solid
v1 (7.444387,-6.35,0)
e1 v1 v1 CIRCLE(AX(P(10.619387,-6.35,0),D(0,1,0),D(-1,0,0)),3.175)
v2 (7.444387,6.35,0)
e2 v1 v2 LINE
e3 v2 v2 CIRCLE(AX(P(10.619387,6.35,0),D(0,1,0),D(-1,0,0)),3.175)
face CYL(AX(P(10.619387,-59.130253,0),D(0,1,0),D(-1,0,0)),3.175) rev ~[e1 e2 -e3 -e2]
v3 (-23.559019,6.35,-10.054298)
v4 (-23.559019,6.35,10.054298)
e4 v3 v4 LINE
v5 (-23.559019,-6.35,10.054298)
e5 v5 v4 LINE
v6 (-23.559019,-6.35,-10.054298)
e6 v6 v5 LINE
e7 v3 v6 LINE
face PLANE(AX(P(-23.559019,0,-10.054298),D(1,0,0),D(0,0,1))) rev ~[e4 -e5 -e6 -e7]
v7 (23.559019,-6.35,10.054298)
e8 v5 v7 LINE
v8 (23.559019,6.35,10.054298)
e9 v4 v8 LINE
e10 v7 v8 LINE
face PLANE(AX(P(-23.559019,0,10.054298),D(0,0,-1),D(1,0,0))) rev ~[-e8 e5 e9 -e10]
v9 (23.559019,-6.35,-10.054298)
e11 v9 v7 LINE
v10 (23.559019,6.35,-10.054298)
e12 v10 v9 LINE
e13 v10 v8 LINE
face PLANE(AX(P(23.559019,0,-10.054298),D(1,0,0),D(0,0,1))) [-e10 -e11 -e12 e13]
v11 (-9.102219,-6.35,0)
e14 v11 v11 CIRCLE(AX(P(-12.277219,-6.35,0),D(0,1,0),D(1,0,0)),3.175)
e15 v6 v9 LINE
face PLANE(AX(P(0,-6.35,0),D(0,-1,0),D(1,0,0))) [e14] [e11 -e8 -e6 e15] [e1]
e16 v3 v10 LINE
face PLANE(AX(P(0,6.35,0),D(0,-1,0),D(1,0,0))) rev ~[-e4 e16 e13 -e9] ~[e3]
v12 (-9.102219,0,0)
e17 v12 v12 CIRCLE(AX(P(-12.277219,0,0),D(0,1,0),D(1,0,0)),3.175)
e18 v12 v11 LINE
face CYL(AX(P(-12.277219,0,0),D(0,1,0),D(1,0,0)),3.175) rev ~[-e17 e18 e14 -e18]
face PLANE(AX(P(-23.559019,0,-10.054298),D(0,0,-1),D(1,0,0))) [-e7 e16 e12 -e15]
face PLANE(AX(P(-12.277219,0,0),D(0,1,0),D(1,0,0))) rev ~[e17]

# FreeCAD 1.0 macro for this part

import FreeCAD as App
import Part
import Sketcher
Q = App.Units.Quantity


def add_polygon(sketch, points):
    """Adds a closed chain of lines whose ends are joined by coincident constraints."""
    first, n = sketch.GeometryCount, len(points)
    for a, b in zip(points, points[1:] + points[:1]):
        sketch.addGeometry(Part.LineSegment(App.Vector(*a, 0), App.Vector(*b, 0)), False)
    for i in range(n):
        sketch.addConstraint(Sketcher.Constraint("Coincident", first + i, 2, first + (i + 1) % n, 1))

doc = App.newDocument("Part")
body = doc.addObject("PartDesign::Body", "Body")

# Sketch on XZ plane
sketch1 = body.newObject("Sketcher::SketchObject", "Sketch")
sketch1.AttachmentSupport = (doc.getObject("XZ_Plane"), [""])
sketch1.MapMode = "FlatFace"
add_polygon(sketch1, [(-24, 10), (-24, -10), (24, -10), (24, 10)])  # lines 0-3
sketch1.addConstraint([
    Sketcher.Constraint("Vertical", 0),
    Sketcher.Constraint("Horizontal", 1),
    Sketcher.Constraint("Vertical", 2),
    Sketcher.Constraint("Horizontal", 3),
    Sketcher.Constraint("Symmetric", 0, 2, 2, 2, -1, 1),
    Sketcher.Constraint("DistanceX", 1, 1, 1, 2, Q("47.118038 mm")),
    Sketcher.Constraint("DistanceY", 0, 2, 0, 1, Q("20.108595 mm")),
])
pad1 = body.newObject("PartDesign::Pad", "Pad")
pad1.Profile = sketch1
pad1.Length = Q("0.5 in")
pad1.Midplane = True

# Sketch on XZ plane
sketch2 = body.newObject("Sketcher::SketchObject", "Sketch001")
sketch2.AttachmentSupport = (doc.getObject("XZ_Plane"), [""])
sketch2.MapMode = "FlatFace"
sketch2.addGeometry(Part.Circle(App.Vector(-12.3, 0, 0), App.Vector(0, 0, 1), 3.2), False)
sketch2.addConstraint([
    Sketcher.Constraint("PointOnObject", 0, 3, -1),
    Sketcher.Constraint("Diameter", 0, Q("0.25 in")),
    Sketcher.Constraint("DistanceX", 0, 3, -1, 1, Q("12.277219 mm")),
])
pocket1 = body.newObject("PartDesign::Pocket", "Pocket")
pocket1.Profile = sketch2
pocket1.Type = "ThroughAll"
pocket1.Reversed = True

# Sketch on XZ plane
sketch3 = body.newObject("Sketcher::SketchObject", "Sketch002")
sketch3.AttachmentSupport = (doc.getObject("XZ_Plane"), [""])
sketch3.MapMode = "FlatFace"
sketch3.AttachmentOffset = App.Placement(App.Vector(0, 0, 0.25 * 25.4), App.Rotation())
sketch3.addGeometry(Part.Circle(App.Vector(10.6, 0, 0), App.Vector(0, 0, 1), 3.2), False)
sketch3.addConstraint([
    Sketcher.Constraint("PointOnObject", 0, 3, -1),
    Sketcher.Constraint("Diameter", 0, Q("0.25 in")),
    Sketcher.Constraint("DistanceX", -1, 1, 0, 3, Q("10.619387 mm")),
])
doc.recompute()
hole = body.newObject("PartDesign::Hole", "Hole")
hole.Profile = sketch3
hole.ThreadType = "None"
hole.Diameter = Q("0.25 in")
hole.DepthType = "ThroughAll"

doc.recompute()
